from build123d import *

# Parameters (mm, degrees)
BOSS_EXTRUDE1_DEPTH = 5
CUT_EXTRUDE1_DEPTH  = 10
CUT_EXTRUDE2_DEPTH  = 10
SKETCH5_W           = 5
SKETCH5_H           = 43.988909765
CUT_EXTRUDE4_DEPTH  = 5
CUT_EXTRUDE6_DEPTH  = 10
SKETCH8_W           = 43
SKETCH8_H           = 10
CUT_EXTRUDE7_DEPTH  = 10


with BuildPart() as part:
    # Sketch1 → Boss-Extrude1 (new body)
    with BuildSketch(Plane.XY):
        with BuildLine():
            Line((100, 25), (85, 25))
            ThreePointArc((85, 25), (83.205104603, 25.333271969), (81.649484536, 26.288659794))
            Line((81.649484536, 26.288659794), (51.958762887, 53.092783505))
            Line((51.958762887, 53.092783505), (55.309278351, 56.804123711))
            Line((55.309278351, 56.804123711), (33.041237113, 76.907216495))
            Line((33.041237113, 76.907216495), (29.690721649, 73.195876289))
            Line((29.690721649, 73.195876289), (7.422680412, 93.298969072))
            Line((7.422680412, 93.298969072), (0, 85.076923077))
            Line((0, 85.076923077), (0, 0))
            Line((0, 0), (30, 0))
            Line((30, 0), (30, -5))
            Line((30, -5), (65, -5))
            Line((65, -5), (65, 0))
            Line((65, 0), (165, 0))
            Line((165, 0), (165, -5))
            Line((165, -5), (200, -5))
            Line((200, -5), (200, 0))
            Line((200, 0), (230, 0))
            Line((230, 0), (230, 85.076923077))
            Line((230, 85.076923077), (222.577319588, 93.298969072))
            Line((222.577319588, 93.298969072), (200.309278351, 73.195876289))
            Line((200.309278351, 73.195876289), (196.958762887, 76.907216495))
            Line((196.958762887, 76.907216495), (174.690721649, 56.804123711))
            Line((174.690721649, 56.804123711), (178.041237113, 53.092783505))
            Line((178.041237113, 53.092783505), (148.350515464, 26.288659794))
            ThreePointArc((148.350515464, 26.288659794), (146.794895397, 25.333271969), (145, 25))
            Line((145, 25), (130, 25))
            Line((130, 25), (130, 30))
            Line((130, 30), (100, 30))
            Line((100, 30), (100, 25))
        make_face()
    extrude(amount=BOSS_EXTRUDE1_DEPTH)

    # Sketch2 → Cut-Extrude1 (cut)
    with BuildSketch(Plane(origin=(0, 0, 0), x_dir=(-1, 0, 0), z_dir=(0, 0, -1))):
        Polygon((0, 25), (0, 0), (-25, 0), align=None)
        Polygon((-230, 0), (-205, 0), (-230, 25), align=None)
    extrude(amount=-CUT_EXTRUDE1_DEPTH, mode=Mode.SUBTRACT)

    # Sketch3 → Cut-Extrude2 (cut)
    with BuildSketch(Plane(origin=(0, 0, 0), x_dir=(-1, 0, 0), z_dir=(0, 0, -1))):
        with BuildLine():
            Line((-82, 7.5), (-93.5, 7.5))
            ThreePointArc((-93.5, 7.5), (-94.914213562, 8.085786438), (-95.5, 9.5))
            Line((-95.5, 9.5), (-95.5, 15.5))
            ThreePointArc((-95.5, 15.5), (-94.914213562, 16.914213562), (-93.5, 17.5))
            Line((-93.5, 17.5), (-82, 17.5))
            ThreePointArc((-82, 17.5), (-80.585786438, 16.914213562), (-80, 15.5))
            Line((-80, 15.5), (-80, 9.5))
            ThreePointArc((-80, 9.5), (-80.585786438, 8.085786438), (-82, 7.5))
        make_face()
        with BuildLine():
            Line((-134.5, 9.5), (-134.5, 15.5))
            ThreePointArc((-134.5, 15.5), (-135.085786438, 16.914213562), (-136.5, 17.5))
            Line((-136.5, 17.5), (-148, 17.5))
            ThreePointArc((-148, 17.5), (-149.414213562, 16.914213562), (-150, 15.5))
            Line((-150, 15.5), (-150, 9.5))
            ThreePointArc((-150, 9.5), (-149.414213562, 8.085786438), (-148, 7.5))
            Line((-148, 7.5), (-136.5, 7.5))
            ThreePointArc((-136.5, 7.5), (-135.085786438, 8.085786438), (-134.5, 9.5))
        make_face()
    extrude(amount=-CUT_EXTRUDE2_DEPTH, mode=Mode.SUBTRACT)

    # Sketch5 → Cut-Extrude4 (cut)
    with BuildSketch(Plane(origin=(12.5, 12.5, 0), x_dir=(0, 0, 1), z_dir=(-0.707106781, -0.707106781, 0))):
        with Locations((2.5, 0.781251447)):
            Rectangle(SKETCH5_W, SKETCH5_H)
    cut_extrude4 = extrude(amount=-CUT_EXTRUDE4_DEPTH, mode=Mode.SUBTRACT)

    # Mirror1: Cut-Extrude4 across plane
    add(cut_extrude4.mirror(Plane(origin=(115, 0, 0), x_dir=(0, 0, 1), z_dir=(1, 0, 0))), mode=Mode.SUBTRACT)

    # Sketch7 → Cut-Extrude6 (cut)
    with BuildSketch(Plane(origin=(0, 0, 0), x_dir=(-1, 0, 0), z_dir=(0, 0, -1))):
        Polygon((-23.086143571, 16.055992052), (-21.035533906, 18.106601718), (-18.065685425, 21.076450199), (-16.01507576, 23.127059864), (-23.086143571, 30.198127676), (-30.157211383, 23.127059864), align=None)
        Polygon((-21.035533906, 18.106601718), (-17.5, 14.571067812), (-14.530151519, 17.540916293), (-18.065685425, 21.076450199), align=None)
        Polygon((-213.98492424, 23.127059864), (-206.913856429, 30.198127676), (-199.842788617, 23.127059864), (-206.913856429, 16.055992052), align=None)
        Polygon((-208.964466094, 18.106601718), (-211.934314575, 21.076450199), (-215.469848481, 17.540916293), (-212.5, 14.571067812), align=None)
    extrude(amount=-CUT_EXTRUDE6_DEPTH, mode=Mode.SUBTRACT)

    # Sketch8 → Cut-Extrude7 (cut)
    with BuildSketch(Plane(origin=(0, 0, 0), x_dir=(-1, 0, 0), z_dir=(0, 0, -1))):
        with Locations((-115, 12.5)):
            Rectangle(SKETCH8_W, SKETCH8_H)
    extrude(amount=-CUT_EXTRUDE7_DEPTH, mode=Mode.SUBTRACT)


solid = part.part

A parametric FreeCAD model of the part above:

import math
import FreeCAD as App
import Part
import Sketcher

V = App.Vector


def add_polygon(sketch, points):
    """Adds a closed chain of lines whose ends are joined by coincident constraints."""
    first, n = sketch.GeometryCount, len(points)
    for a, b in zip(points, points[1:] + points[:1]):
        sketch.addGeometry(Part.LineSegment(App.Vector(*a, 0), App.Vector(*b, 0)), False)
    for i in range(n):
        sketch.addConstraint(Sketcher.Constraint("Coincident", first + i, 2, first + (i + 1) % n, 1))

doc = App.newDocument("Part")
body = doc.addObject("PartDesign::Body", "Body")

sketch1 = doc.addObject("Sketcher::SketchObject", "Sketch")
body.addObject(sketch1)
sketch1.AttachmentSupport = (doc.XY_Plane, [""])
sketch1.MapMode = "FlatFace"
sketch1.addGeometry([
    Part.LineSegment(V(100, 25, 0), V(85, 25, 0)),
    Part.ArcOfCircle(Part.Circle(V(85, 30, 0), V(0, 0, 1), 5), math.radians(-132.075022), math.radians(-90)),
    Part.LineSegment(V(81.649485, 26.28866, 0), V(51.958763, 53.092784, 0)),
    Part.LineSegment(V(51.958763, 53.092784, 0), V(55.309278, 56.804124, 0)),
    Part.LineSegment(V(55.309278, 56.804124, 0), V(33.041237, 76.907216, 0)),
    Part.LineSegment(V(33.041237, 76.907216, 0), V(29.690722, 73.195876, 0)),
    Part.LineSegment(V(29.690722, 73.195876, 0), V(7.42268, 93.298969, 0)),
    Part.LineSegment(V(7.42268, 93.298969, 0), V(0, 85.076923, 0)),
    Part.LineSegment(V(0, 85.076923, 0), V(0, 0, 0)),
    Part.LineSegment(V(0, 0, 0), V(30, 0, 0)),
    Part.LineSegment(V(30, 0, 0), V(30, -5, 0)),
    Part.LineSegment(V(30, -5, 0), V(65, -5, 0)),
    Part.LineSegment(V(65, -5, 0), V(65, 0, 0)),
    Part.LineSegment(V(65, 0, 0), V(165, 0, 0)),
    Part.LineSegment(V(165, 0, 0), V(165, -5, 0)),
    Part.LineSegment(V(165, -5, 0), V(200, -5, 0)),
    Part.LineSegment(V(200, -5, 0), V(200, 0, 0)),
    Part.LineSegment(V(200, 0, 0), V(230, 0, 0)),
    Part.LineSegment(V(230, 0, 0), V(230, 85.076923, 0)),
    Part.LineSegment(V(230, 85.076923, 0), V(222.57732, 93.298969, 0)),
    Part.LineSegment(V(222.57732, 93.298969, 0), V(200.309278, 73.195876, 0)),
    Part.LineSegment(V(200.309278, 73.195876, 0), V(196.958763, 76.907216, 0)),
    Part.LineSegment(V(196.958763, 76.907216, 0), V(174.690722, 56.804124, 0)),
    Part.LineSegment(V(174.690722, 56.804124, 0), V(178.041237, 53.092784, 0)),
    Part.LineSegment(V(178.041237, 53.092784, 0), V(148.350515, 26.28866, 0)),
    Part.ArcOfCircle(Part.Circle(V(145, 30, 0), V(0, 0, 1), 5), math.radians(-90), math.radians(-47.924978)),
    Part.LineSegment(V(145, 25, 0), V(130, 25, 0)),
    Part.LineSegment(V(130, 25, 0), V(130, 30, 0)),
    Part.LineSegment(V(130, 30, 0), V(100, 30, 0)),
    Part.LineSegment(V(100, 30, 0), V(100, 25, 0)),
], False)
sketch1.addConstraint([
    Sketcher.Constraint("Tangent", 0, 2, 1, 2),
    Sketcher.Constraint("Tangent", 1, 1, 2, 1),
    Sketcher.Constraint("Coincident", 2, 2, 3, 1),
    Sketcher.Constraint("Coincident", 3, 2, 4, 1),
    Sketcher.Constraint("Coincident", 4, 2, 5, 1),
    Sketcher.Constraint("Coincident", 5, 2, 6, 1),
    Sketcher.Constraint("Coincident", 6, 2, 7, 1),
    Sketcher.Constraint("Coincident", 7, 2, 8, 1),
    Sketcher.Constraint("Coincident", 8, 2, 9, 1),
    Sketcher.Constraint("Coincident", 9, 2, 10, 1),
    Sketcher.Constraint("Coincident", 10, 2, 11, 1),
    Sketcher.Constraint("Coincident", 11, 2, 12, 1),
    Sketcher.Constraint("Coincident", 12, 2, 13, 1),
    Sketcher.Constraint("Coincident", 13, 2, 14, 1),
    Sketcher.Constraint("Coincident", 14, 2, 15, 1),
    Sketcher.Constraint("Coincident", 15, 2, 16, 1),
    Sketcher.Constraint("Coincident", 16, 2, 17, 1),
    Sketcher.Constraint("Coincident", 17, 2, 18, 1),
    Sketcher.Constraint("Coincident", 18, 2, 19, 1),
    Sketcher.Constraint("Coincident", 19, 2, 20, 1),
    Sketcher.Constraint("Coincident", 20, 2, 21, 1),
    Sketcher.Constraint("Coincident", 21, 2, 22, 1),
    Sketcher.Constraint("Coincident", 22, 2, 23, 1),
    Sketcher.Constraint("Coincident", 23, 2, 24, 1),
    Sketcher.Constraint("Tangent", 24, 2, 25, 2),
    Sketcher.Constraint("Tangent", 25, 1, 26, 1),
    Sketcher.Constraint("Coincident", 26, 2, 27, 1),
    Sketcher.Constraint("Coincident", 27, 2, 28, 1),
    Sketcher.Constraint("Coincident", 28, 2, 29, 1),
    Sketcher.Constraint("Coincident", 29, 2, 0, 1),
    Sketcher.Constraint("Horizontal", 0),
    Sketcher.Constraint("Vertical", 8),
    Sketcher.Constraint("Horizontal", 9),
    Sketcher.Constraint("Vertical", 10),
    Sketcher.Constraint("Horizontal", 11),
    Sketcher.Constraint("Vertical", 12),
    Sketcher.Constraint("Horizontal", 13),
    Sketcher.Constraint("Vertical", 14),
    Sketcher.Constraint("Horizontal", 15),
    Sketcher.Constraint("Vertical", 16),
    Sketcher.Constraint("Horizontal", 17),
    Sketcher.Constraint("Vertical", 18),
    Sketcher.Constraint("Horizontal", 26),
    Sketcher.Constraint("Vertical", 27),
    Sketcher.Constraint("Horizontal", 28),
    Sketcher.Constraint("Vertical", 29),
    Sketcher.Constraint("Coincident", 8, 2, -1, 1),
    Sketcher.Constraint("Equal", 1, 25),
    Sketcher.Constraint("PointOnObject", 12, 2, -1),
    Sketcher.Constraint("PointOnObject", 16, 2, -1),
    Sketcher.Constraint("Perpendicular", 2, 3),
    Sketcher.Constraint("Perpendicular", 3, 4),
    Sketcher.Constraint("Perpendicular", 4, 5),
    Sketcher.Constraint("Perpendicular", 5, 6),
    Sketcher.Constraint("Perpendicular", 6, 7),
    Sketcher.Constraint("Perpendicular", 19, 20),
    Sketcher.Constraint("Perpendicular", 20, 21),
    Sketcher.Constraint("Perpendicular", 21, 22),
    Sketcher.Constraint("Perpendicular", 22, 23),
    Sketcher.Constraint("Perpendicular", 23, 24),
    Sketcher.Constraint("Horizontal", 1, 3, 25, 3),
    Sketcher.Constraint("Horizontal", 11, 2, 14, 2),
    Sketcher.Constraint("Horizontal", 7, 2, 18, 2),
    Sketcher.Constraint("Horizontal", 6, 2, 19, 2),
    Sketcher.Constraint("Horizontal", 5, 2, 20, 2),
    Sketcher.Constraint("Horizontal", 4, 2, 21, 2),
    Sketcher.Constraint("Horizontal", 3, 2, 22, 2),
    Sketcher.Constraint("Horizontal", 2, 2, 23, 2),
    Sketcher.Constraint("Horizontal", 1, 1, 24, 2),
    Sketcher.Constraint("Horizontal", 25, 3, 27, 2),
    Sketcher.Constraint("Equal", 11, 15),
    Sketcher.Constraint("Equal", 9, 17),
    Sketcher.Constraint("Equal", 0, 26),
    Sketcher.Constraint("Equal", 17, 28),
    Sketcher.Constraint("Equal", 16, 27),
    Sketcher.Constraint("Equal", 3, 5),
    Sketcher.Constraint("Equal", 4, 6),
    Sketcher.Constraint("Radius", 1, 5.0),
    Sketcher.Constraint("DistanceX", 0, 2, 0, 1, 15.0),
    Sketcher.Constraint("DistanceX", 9, 1, 9, 2, 30.0),
    Sketcher.Constraint("DistanceX", 11, 1, 11, 2, 35.0),
    Sketcher.Constraint("DistanceX", 13, 1, 13, 2, 100.0),
    Sketcher.Constraint("Distance", 2, 40.0),
    Sketcher.Constraint("Distance", 3, 5.0),
    Sketcher.Constraint("Distance", 4, 30.0),
    Sketcher.Constraint("DistanceY", -1, 1, 1, 3, 30.0),
    Sketcher.Constraint("DistanceY", 3, 2, 7, 2, 28.272799),
])
pad1 = doc.addObject("PartDesign::Pad", "Pad")
body.addObject(pad1)
pad1.Profile = sketch1
pad1.Length = 5

sketch2 = doc.addObject("Sketcher::SketchObject", "Sketch001")
body.addObject(sketch2)
sketch2.AttachmentSupport = (doc.XY_Plane, [""])
sketch2.MapMode = "FlatFace"
add_polygon(sketch2, [(0, 0), (0, 25), (25, 0)])
add_polygon(sketch2, [(230, 0), (205, 0), (230, 25)])
sketch2.addConstraint([
    Sketcher.Constraint("Vertical", 0),
    Sketcher.Constraint("Horizontal", 2),
    Sketcher.Constraint("Horizontal", 3),
    Sketcher.Constraint("Vertical", 5),
    Sketcher.Constraint("Coincident", 2, 2, -1, 1),
    Sketcher.Constraint("PointOnObject", 3, 2, -1),
    Sketcher.Constraint("Perpendicular", 1, 4),
    Sketcher.Constraint("Horizontal", 0, 2, 4, 2),
    Sketcher.Constraint("Equal", 2, 3),
    Sketcher.Constraint("DistanceX", 2, 2, 2, 1, 25.0),
    Sketcher.Constraint("DistanceX", -1, 1, 3, 2, 205.0),
])
pocket1 = doc.addObject("PartDesign::Pocket", "Pocket")
body.addObject(pocket1)
pocket1.Profile = sketch2
pocket1.Length = 10
pocket1.Reversed = True

sketch3 = doc.addObject("Sketcher::SketchObject", "Sketch002")
body.addObject(sketch3)
sketch3.AttachmentSupport = (doc.XY_Plane, [""])
sketch3.MapMode = "FlatFace"
sketch3.addGeometry([
    Part.LineSegment(V(93.5, 7.5, 0), V(82, 7.5, 0)),
    Part.ArcOfCircle(Part.Circle(V(82, 9.5, 0), V(0, 0, 1), 2), math.radians(-180), math.radians(-90)),
    Part.LineSegment(V(80, 9.5, 0), V(80, 15.5, 0)),
    Part.ArcOfCircle(Part.Circle(V(82, 15.5, 0), V(0, 0, 1), 2), math.radians(90), math.radians(180)),
    Part.LineSegment(V(82, 17.5, 0), V(93.5, 17.5, 0)),
    Part.ArcOfCircle(Part.Circle(V(93.5, 15.5, 0), V(0, 0, 1), 2), math.radians(0), math.radians(90)),
    Part.LineSegment(V(95.5, 15.5, 0), V(95.5, 9.5, 0)),
    Part.ArcOfCircle(Part.Circle(V(93.5, 9.5, 0), V(0, 0, 1), 2), math.radians(-90), math.radians(0)),
    Part.LineSegment(V(134.5, 9.5, 0), V(134.5, 15.5, 0)),
    Part.ArcOfCircle(Part.Circle(V(136.5, 15.5, 0), V(0, 0, 1), 2), math.radians(90), math.radians(180)),
    Part.LineSegment(V(136.5, 17.5, 0), V(148, 17.5, 0)),
    Part.ArcOfCircle(Part.Circle(V(148, 15.5, 0), V(0, 0, 1), 2), math.radians(0), math.radians(90)),
    Part.LineSegment(V(150, 15.5, 0), V(150, 9.5, 0)),
    Part.ArcOfCircle(Part.Circle(V(148, 9.5, 0), V(0, 0, 1), 2), math.radians(-90), math.radians(0)),
    Part.LineSegment(V(148, 7.5, 0), V(136.5, 7.5, 0)),
    Part.ArcOfCircle(Part.Circle(V(136.5, 9.5, 0), V(0, 0, 1), 2), math.radians(-180), math.radians(-90)),
], False)
sketch3.addConstraint([
    Sketcher.Constraint("Tangent", 0, 2, 1, 2),
    Sketcher.Constraint("Tangent", 1, 1, 2, 1),
    Sketcher.Constraint("Tangent", 2, 2, 3, 2),
    Sketcher.Constraint("Tangent", 3, 1, 4, 1),
    Sketcher.Constraint("Tangent", 4, 2, 5, 2),
    Sketcher.Constraint("Tangent", 5, 1, 6, 1),
    Sketcher.Constraint("Tangent", 6, 2, 7, 2),
    Sketcher.Constraint("Tangent", 7, 1, 0, 1),
    Sketcher.Constraint("Tangent", 8, 2, 9, 2),
    Sketcher.Constraint("Tangent", 9, 1, 10, 1),
    Sketcher.Constraint("Tangent", 10, 2, 11, 2),
    Sketcher.Constraint("Tangent", 11, 1, 12, 1),
    Sketcher.Constraint("Tangent", 12, 2, 13, 2),
    Sketcher.Constraint("Tangent", 13, 1, 14, 1),
    Sketcher.Constraint("Tangent", 14, 2, 15, 2),
    Sketcher.Constraint("Tangent", 15, 1, 8, 1),
    Sketcher.Constraint("Horizontal", 0),
    Sketcher.Constraint("Vertical", 2),
    Sketcher.Constraint("Horizontal", 4),
    Sketcher.Constraint("Vertical", 6),
    Sketcher.Constraint("Vertical", 8),
    Sketcher.Constraint("Horizontal", 10),
    Sketcher.Constraint("Vertical", 12),
    Sketcher.Constraint("Horizontal", 14),
    Sketcher.Constraint("Equal", 1, 3),
    Sketcher.Constraint("Equal", 3, 5),
    Sketcher.Constraint("Equal", 5, 7),
    Sketcher.Constraint("Equal", 7, 9),
    Sketcher.Constraint("Equal", 9, 11),
    Sketcher.Constraint("Equal", 11, 13),
    Sketcher.Constraint("Equal", 13, 15),
    Sketcher.Constraint("Horizontal", 5, 3, 9, 3),
    Sketcher.Constraint("Horizontal", 7, 3, 13, 3),
    Sketcher.Constraint("Equal", 4, 10),
    Sketcher.Constraint("Radius", 1, 2.0),
    Sketcher.Constraint("DistanceY", 2, 1, 2, 2, 6.0),
    Sketcher.Constraint("DistanceX", 0, 2, 0, 1, 11.5),
    Sketcher.Constraint("DistanceX", -1, 1, 1, 3, 82.0),
    Sketcher.Constraint("DistanceX", -1, 1, 11, 3, 148.0),
    Sketcher.Constraint("DistanceY", -1, 1, 1, 3, 9.5),
])
pocket2 = doc.addObject("PartDesign::Pocket", "Pocket001")
body.addObject(pocket2)
pocket2.Profile = sketch3
pocket2.Length = 10
pocket2.Reversed = True

sketch4 = doc.addObject("Sketcher::SketchObject", "Sketch003")
body.addObject(sketch4)
sketch4.Placement = App.Placement(V(12.5, 12.5, 0), App.Rotation(V(0, 0, 1), V(-0.707106781, 0.707106781, 0), V(-0.707106781, -0.707106781, 0), "ZXY"))
add_polygon(sketch4, [(0, 22.775706), (0, -21.213203), (5, -21.213203), (5, 22.775706)])
sketch4.addConstraint([
    Sketcher.Constraint("Vertical", 0),
    Sketcher.Constraint("Horizontal", 1),
    Sketcher.Constraint("Vertical", 2),
    Sketcher.Constraint("Horizontal", 3),
    Sketcher.Constraint("PointOnObject", 0, 2, -2),
    Sketcher.Constraint("DistanceX", 1, 1, 1, 2, 5.0),
    Sketcher.Constraint("DistanceY", 0, 2, 0, 1, 43.98891),
    Sketcher.Constraint("DistanceY", 0, 2, -1, 1, 21.213203),
])
pocket3 = doc.addObject("PartDesign::Pocket", "Pocket002")
body.addObject(pocket3)
pocket3.Profile = sketch4
pocket3.Length = 5
doc.recompute()

datumplane = doc.addObject("PartDesign::Plane", "DatumPlane")
body.addObject(datumplane)
datumplane.AttachmentSupport = (doc.YZ_Plane, [""])
datumplane.MapMode = "FlatFace"
datumplane.AttachmentOffset = App.Placement(V(0, 0, 115), App.Rotation())
mirrored = doc.addObject("PartDesign::Mirrored", "Mirrored")
body.addObject(mirrored)
mirrored.Originals = [pocket3]
mirrored.MirrorPlane = (datumplane, [""])
body.Tip = mirrored

sketch5 = doc.addObject("Sketcher::SketchObject", "Sketch004")
body.addObject(sketch5)
sketch5.AttachmentSupport = (doc.XY_Plane, [""])
sketch5.MapMode = "FlatFace"
add_polygon(sketch5, [(23.086144, 16.055992), (21.035534, 18.106602), (17.5, 14.571068), (14.530152, 17.540916), (18.065685, 21.07645), (16.015076, 23.12706), (23.086144, 30.198128), (30.157211, 23.12706)])
add_polygon(sketch5, [(206.913856, 30.198128), (213.984924, 23.12706), (211.934315, 21.07645), (215.469848, 17.540916), (212.5, 14.571068), (208.964466, 18.106602), (206.913856, 16.055992), (199.842789, 23.12706)])
sketch5.addConstraint([
    Sketcher.Constraint("Perpendicular", 0, 1),
    Sketcher.Constraint("Perpendicular", 1, 2),
    Sketcher.Constraint("Perpendicular", 2, 3),
    Sketcher.Constraint("Perpendicular", 3, 4),
    Sketcher.Constraint("Perpendicular", 4, 5),
    Sketcher.Constraint("Perpendicular", 5, 6),
    Sketcher.Constraint("Perpendicular", 6, 7),
    Sketcher.Constraint("Perpendicular", 7, 8),
    Sketcher.Constraint("Perpendicular", 8, 9),
    Sketcher.Constraint("Perpendicular", 9, 10),
    Sketcher.Constraint("Perpendicular", 10, 11),
    Sketcher.Constraint("Perpendicular", 11, 12),
    Sketcher.Constraint("Perpendicular", 12, 13),
    Sketcher.Constraint("Perpendicular", 13, 14),
    Sketcher.Constraint("Perpendicular", 14, 15),
    Sketcher.Constraint("Horizontal", 4, 2, 6, 2),
    Sketcher.Constraint("Horizontal", 6, 2, 8, 2),
    Sketcher.Constraint("Horizontal", 3, 2, 9, 2),
    Sketcher.Constraint("Horizontal", 2, 2, 10, 2),
    Sketcher.Constraint("Horizontal", 1, 2, 11, 2),
    Sketcher.Constraint("Horizontal", 0, 2, 12, 2),
    Sketcher.Constraint("Horizontal", 7, 2, 13, 2),
    Sketcher.Constraint("Horizontal", 8, 2, 14, 2),
    Sketcher.Constraint("Vertical", 5, 2, 7, 2),
    Sketcher.Constraint("Vertical", 13, 2, 15, 2),
    Sketcher.Constraint("Equal", 0, 4),
    Sketcher.Constraint("Distance", 1, 5.0),
    Sketcher.Constraint("Distance", 5, 10.0),
    Sketcher.Constraint("Distance", 0, 2.9),
    Sketcher.Constraint("DistanceX", -1, 1, 1, 2, 17.5),
    Sketcher.Constraint("DistanceX", -1, 1, 11, 2, 212.5),
    Sketcher.Constraint("DistanceY", -1, 1, 0, 2, 18.106602),
])
pocket4 = doc.addObject("PartDesign::Pocket", "Pocket003")
body.addObject(pocket4)
pocket4.Profile = sketch5
pocket4.Length = 10
pocket4.Reversed = True

sketch6 = doc.addObject("Sketcher::SketchObject", "Sketch005")
body.addObject(sketch6)
sketch6.AttachmentSupport = (doc.XY_Plane, [""])
sketch6.MapMode = "FlatFace"
add_polygon(sketch6, [(136.5, 17.5), (136.5, 7.5), (93.5, 7.5), (93.5, 17.5)])
sketch6.addConstraint([
    Sketcher.Constraint("Vertical", 0),
    Sketcher.Constraint("Horizontal", 1),
    Sketcher.Constraint("Vertical", 2),
    Sketcher.Constraint("Horizontal", 3),
    Sketcher.Constraint("DistanceX", 1, 2, 1, 1, 43.0),
    Sketcher.Constraint("DistanceY", 0, 2, 0, 1, 10.0),
    Sketcher.Constraint("DistanceX", -1, 1, 0, 2, 136.5),
    Sketcher.Constraint("DistanceY", -1, 1, 0, 2, 7.5),
])
pocket5 = doc.addObject("PartDesign::Pocket", "Pocket004")
body.addObject(pocket5)
pocket5.Profile = sketch6
pocket5.Length = 10
pocket5.Reversed = True

doc.recompute()
